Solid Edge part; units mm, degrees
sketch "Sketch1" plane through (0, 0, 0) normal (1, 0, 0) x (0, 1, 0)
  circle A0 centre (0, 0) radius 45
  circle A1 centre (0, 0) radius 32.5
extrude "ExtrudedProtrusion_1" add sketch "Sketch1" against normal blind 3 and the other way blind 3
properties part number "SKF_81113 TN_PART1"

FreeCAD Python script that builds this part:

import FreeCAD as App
import Part
import Sketcher

V = App.Vector

doc = App.newDocument("Part")
body = doc.addObject("PartDesign::Body", "Body")

# Sketch on YZ plane
sketch1 = doc.addObject("Sketcher::SketchObject", "Sketch")
body.addObject(sketch1)
sketch1.AttachmentSupport = (doc.YZ_Plane, [""])
sketch1.MapMode = "FlatFace"
sketch1.addGeometry(Part.Circle(V(0, 0, 0), V(0, 0, 1), 45), False)
sketch1.addGeometry(Part.Circle(V(0, 0, 0), V(0, 0, 1), 32), False)
sketch1.addConstraint(Sketcher.Constraint("Coincident", 0, 3, -1, 1))
sketch1.addConstraint(Sketcher.Constraint("Coincident", 1, 3, -1, 1))
sketch1.addConstraint(Sketcher.Constraint("Diameter", 0, 90.0))
sketch1.addConstraint(Sketcher.Constraint("Diameter", 1, 65.0))
pad1 = doc.addObject("PartDesign::Pad", "Pad")
body.addObject(pad1)
pad1.Profile = sketch1
pad1.Type = "TwoLengths"
pad1.Length = 3
pad1.Length2 = 3
pad1.Reversed = True

doc.recompute()
